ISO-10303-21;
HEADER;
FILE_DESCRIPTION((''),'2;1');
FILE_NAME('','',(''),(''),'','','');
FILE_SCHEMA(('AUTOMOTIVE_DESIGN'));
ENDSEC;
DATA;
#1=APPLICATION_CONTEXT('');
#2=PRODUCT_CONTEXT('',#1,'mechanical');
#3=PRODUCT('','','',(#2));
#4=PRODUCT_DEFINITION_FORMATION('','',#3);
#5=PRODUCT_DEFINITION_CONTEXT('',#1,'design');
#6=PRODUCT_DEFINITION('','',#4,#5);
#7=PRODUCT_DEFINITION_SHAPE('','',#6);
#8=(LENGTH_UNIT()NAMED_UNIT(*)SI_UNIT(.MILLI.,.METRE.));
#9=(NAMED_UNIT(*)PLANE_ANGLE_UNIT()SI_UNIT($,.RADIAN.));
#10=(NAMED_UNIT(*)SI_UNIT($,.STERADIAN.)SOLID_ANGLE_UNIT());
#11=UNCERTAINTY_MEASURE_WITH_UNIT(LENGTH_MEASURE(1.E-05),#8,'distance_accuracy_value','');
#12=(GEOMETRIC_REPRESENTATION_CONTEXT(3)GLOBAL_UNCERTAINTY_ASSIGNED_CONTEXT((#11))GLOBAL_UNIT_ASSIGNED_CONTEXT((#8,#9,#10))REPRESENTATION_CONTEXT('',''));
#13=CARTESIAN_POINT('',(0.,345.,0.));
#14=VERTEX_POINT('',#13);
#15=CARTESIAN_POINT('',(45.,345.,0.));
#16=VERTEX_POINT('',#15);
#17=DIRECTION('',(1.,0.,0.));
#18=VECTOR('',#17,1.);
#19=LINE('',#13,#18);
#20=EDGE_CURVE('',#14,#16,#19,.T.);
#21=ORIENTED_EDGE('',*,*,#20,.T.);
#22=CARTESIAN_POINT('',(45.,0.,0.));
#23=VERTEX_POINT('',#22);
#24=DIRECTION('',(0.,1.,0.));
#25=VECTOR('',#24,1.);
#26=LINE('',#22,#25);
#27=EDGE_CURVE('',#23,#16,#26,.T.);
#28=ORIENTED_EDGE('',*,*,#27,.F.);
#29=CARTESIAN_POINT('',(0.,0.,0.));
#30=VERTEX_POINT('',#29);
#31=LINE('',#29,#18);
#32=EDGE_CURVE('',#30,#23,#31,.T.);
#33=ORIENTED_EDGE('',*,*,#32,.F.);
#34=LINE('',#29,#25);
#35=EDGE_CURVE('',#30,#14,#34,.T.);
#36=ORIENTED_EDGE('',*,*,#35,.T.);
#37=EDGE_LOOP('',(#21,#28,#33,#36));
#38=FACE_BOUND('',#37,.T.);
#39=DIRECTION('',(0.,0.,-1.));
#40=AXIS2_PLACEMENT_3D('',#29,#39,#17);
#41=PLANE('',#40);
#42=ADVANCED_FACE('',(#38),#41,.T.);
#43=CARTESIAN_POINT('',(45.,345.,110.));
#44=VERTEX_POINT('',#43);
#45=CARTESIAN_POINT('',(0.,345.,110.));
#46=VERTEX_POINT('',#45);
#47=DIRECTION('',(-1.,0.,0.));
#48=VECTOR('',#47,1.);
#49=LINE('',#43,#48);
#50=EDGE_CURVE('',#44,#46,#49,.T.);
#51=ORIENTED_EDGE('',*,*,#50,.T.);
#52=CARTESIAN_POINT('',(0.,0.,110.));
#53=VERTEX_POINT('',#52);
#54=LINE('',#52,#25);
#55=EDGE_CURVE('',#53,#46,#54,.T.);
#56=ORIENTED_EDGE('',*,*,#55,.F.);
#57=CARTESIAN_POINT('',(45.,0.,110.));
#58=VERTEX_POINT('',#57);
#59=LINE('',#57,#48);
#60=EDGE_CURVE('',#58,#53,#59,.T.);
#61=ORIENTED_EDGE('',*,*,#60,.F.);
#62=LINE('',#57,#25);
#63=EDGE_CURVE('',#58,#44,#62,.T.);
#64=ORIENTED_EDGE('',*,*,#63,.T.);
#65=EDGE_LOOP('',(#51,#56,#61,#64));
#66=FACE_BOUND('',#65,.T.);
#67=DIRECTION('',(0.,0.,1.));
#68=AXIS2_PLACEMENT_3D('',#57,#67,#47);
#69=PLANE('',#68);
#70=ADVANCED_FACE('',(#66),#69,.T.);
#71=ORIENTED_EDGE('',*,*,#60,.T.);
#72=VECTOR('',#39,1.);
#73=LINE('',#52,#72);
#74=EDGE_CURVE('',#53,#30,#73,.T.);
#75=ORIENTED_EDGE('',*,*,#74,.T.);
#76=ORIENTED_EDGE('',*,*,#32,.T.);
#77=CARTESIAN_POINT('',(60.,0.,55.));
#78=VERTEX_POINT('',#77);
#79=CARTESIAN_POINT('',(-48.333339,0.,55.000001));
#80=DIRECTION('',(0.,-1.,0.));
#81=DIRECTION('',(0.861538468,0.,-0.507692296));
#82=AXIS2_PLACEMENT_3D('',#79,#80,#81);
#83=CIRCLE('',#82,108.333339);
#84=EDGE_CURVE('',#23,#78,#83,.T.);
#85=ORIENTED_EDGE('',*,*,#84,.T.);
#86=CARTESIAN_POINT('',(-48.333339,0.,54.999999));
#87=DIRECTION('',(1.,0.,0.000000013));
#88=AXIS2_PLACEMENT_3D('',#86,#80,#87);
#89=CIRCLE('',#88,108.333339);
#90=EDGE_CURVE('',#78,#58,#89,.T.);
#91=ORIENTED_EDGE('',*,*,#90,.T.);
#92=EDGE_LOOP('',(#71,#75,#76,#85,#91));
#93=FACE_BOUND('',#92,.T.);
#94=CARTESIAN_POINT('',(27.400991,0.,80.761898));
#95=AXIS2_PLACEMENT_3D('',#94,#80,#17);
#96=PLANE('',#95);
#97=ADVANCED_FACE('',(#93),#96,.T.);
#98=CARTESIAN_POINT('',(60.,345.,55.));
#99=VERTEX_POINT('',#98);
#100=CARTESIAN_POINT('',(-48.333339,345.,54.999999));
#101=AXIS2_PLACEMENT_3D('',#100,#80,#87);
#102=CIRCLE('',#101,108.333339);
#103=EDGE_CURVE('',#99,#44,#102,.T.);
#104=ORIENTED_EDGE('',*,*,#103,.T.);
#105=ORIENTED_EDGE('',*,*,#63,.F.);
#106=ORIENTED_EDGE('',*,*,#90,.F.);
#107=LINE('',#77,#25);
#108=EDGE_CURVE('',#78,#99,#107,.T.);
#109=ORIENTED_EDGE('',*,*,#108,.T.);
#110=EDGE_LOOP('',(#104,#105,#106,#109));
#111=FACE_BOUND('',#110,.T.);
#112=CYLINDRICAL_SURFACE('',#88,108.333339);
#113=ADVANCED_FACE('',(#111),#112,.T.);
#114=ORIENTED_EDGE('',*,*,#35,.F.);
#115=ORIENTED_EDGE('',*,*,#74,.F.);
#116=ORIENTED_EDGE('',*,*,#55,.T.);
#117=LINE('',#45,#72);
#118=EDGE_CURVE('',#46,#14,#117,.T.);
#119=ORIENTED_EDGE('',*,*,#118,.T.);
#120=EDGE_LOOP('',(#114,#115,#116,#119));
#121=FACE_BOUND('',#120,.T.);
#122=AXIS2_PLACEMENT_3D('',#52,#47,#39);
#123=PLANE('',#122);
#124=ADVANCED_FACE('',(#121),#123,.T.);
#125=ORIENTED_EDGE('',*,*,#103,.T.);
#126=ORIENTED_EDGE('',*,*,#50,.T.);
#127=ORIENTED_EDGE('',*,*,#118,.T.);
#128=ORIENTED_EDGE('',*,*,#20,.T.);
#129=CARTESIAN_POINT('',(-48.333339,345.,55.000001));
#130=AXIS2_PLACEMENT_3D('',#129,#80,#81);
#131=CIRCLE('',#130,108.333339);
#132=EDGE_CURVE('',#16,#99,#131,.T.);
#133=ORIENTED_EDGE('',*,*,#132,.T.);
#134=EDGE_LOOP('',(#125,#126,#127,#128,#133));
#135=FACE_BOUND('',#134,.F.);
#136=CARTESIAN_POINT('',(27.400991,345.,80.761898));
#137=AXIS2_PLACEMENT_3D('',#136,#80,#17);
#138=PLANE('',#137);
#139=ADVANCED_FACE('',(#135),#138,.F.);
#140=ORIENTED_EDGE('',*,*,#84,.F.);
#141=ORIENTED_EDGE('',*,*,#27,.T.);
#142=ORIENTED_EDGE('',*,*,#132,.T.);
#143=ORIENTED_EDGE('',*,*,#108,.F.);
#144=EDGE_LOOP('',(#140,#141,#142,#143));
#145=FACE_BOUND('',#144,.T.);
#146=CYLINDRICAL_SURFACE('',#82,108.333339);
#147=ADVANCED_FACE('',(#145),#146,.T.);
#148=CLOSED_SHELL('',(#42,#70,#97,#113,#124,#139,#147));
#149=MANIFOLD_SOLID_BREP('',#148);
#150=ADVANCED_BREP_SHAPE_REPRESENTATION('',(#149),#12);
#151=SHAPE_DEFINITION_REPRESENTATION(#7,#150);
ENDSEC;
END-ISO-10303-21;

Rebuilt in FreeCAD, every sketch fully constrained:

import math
import FreeCAD as App
import Part
import Sketcher

V = App.Vector
Q = App.Units.Quantity

doc = App.newDocument("Part")
body = doc.addObject("PartDesign::Body", "Body")

sketch1 = doc.addObject("Sketcher::SketchObject", "Sketch")
body.addObject(sketch1)
sketch1.AttachmentSupport = (doc.XZ_Plane, [""])
sketch1.MapMode = "FlatFace"
sketch1.addGeometry([
    Part.LineSegment(V(0, 110, 0), V(0, 0, 0)),
    Part.LineSegment(V(0, 0, 0), V(45, 0, 0)),
    Part.ArcOfCircle(Part.Circle(V(-48.333339, 55.000001, 0), V(0, 0, 1), 108.333339), math.radians(-30.510237), math.radians(-0.000001)),
    Part.ArcOfCircle(Part.Circle(V(-48.333339, 54.999999, 0), V(0, 0, 1), 108.333339), math.radians(0.000001), math.radians(30.510237)),
    Part.LineSegment(V(45, 110, 0), V(0, 110, 0)),
], False)
sketch1.addConstraint([
    Sketcher.Constraint("Coincident", 0, 2, 1, 1),
    Sketcher.Constraint("Coincident", 1, 2, 2, 1),
    Sketcher.Constraint("Tangent", 2, 2, 3, 1),
    Sketcher.Constraint("Coincident", 3, 2, 4, 1),
    Sketcher.Constraint("Coincident", 4, 2, 0, 1),
    Sketcher.Constraint("Vertical", 0),
    Sketcher.Constraint("Horizontal", 1),
    Sketcher.Constraint("Horizontal", 4),
    Sketcher.Constraint("Coincident", 0, 2, -1, 1),
    Sketcher.Constraint("Equal", 2, 3),
    Sketcher.Constraint("Horizontal", 3, 3, 2, 2),
    Sketcher.Constraint("Vertical", 1, 2, 3, 2),
    Sketcher.Constraint("DistanceX", 1, 1, 1, 2, Q("45 mm")),
    Sketcher.Constraint("DistanceY", 0, 2, 0, 1, Q("110 mm")),
    Sketcher.Constraint("DistanceX", -1, 1, 2, 2, Q("60 mm")),
])
pad1 = doc.addObject("PartDesign::Pad", "Pad")
body.addObject(pad1)
pad1.Profile = sketch1
pad1.Length = 345
pad1.Reversed = True

doc.recompute()
